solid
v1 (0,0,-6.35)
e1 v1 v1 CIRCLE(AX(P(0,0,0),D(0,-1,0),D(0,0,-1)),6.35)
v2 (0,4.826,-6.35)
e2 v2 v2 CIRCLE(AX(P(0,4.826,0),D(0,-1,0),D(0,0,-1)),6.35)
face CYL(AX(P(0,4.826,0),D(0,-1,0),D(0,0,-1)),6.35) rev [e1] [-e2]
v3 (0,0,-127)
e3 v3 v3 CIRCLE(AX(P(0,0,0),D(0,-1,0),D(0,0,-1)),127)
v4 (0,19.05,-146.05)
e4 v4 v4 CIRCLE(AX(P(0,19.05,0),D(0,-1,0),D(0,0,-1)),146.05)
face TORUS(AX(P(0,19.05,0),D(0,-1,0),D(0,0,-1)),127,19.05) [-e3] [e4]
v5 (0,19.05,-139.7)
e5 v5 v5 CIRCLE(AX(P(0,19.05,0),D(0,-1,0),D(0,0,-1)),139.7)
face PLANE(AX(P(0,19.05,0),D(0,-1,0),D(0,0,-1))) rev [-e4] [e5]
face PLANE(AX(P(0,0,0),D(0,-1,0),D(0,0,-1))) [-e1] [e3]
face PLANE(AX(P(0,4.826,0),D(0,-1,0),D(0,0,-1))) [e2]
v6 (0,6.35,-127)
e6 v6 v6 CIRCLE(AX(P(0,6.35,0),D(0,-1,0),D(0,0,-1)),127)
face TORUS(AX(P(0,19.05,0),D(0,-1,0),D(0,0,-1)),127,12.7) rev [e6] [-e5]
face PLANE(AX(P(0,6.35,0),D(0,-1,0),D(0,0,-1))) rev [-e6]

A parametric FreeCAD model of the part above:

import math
import FreeCAD as App
import Part
import Sketcher
Q = App.Units.Quantity

doc = App.newDocument("Part")
body = doc.addObject("PartDesign::Body", "Body")

# Sketch on XY plane
sketch1 = body.newObject("Sketcher::SketchObject", "Sketch")
sketch1.AttachmentSupport = (doc.getObject("XY_Plane"), [""])
sketch1.MapMode = "FlatFace"
sketch1.addGeometry([
    Part.ArcOfCircle(Part.Circle(App.Vector(127, 19, 0), App.Vector(0, 0, 1), 13), math.radians(-90), math.radians(0)),  # 0
    Part.LineSegment(App.Vector(127, 6, 0), App.Vector(0, 6, 0)),  # 1
    Part.LineSegment(App.Vector(0, 6, 0), App.Vector(0, 0, 0)),  # 2
    Part.LineSegment(App.Vector(0, 0, 0), App.Vector(127, 0, 0)),  # 3
    Part.ArcOfCircle(Part.Circle(App.Vector(127, 19, 0), App.Vector(0, 0, 1), 19), math.radians(-90), math.radians(0)),  # 4
    Part.LineSegment(App.Vector(146, 19, 0), App.Vector(140, 19, 0)),  # 5
], False)
sketch1.addConstraint([
    Sketcher.Constraint("Tangent", 0, 1, 1, 1),
    Sketcher.Constraint("Coincident", 1, 2, 2, 1),
    Sketcher.Constraint("Coincident", 2, 2, 3, 1),
    Sketcher.Constraint("Tangent", 3, 2, 4, 1),
    Sketcher.Constraint("Coincident", 4, 2, 5, 1),
    Sketcher.Constraint("Coincident", 5, 2, 0, 2),
    Sketcher.Constraint("Horizontal", 1),
    Sketcher.Constraint("Vertical", 2),
    Sketcher.Constraint("Horizontal", 3),
    Sketcher.Constraint("Horizontal", 5),
    Sketcher.Constraint("Coincident", 2, 2, -1, 1),
    Sketcher.Constraint("Coincident", 4, 3, 0, 3),
    Sketcher.Constraint("Horizontal", 0, 3, 4, 2),
    Sketcher.Constraint("Radius", 0, Q("0.5 in")),
    Sketcher.Constraint("DistanceX", 1, 2, 1, 1, Q("5 in")),
    Sketcher.Constraint("Radius", 4, Q("0.75 in")),
])
revolution = body.newObject("PartDesign::Revolution", "Revolution")
revolution.Profile = sketch1
revolution.ReferenceAxis = (sketch1, ["V_Axis"])
revolution.Angle = 360

# Sketch on XZ plane
sketch2 = body.newObject("Sketcher::SketchObject", "Sketch001")
sketch2.AttachmentSupport = (doc.getObject("XZ_Plane"), [""])
sketch2.MapMode = "FlatFace"
sketch2.addGeometry(Part.Circle(App.Vector(0, 0, 0), App.Vector(0, 0, 1), 6), False)
sketch2.addConstraint([
    Sketcher.Constraint("Coincident", 0, 3, -1, 1),
    Sketcher.Constraint("Diameter", 0, Q("0.5 in")),
])
pocket1 = body.newObject("PartDesign::Pocket", "Pocket")
pocket1.Profile = sketch2
pocket1.Length = Q("0.19 in")

doc.recompute()
